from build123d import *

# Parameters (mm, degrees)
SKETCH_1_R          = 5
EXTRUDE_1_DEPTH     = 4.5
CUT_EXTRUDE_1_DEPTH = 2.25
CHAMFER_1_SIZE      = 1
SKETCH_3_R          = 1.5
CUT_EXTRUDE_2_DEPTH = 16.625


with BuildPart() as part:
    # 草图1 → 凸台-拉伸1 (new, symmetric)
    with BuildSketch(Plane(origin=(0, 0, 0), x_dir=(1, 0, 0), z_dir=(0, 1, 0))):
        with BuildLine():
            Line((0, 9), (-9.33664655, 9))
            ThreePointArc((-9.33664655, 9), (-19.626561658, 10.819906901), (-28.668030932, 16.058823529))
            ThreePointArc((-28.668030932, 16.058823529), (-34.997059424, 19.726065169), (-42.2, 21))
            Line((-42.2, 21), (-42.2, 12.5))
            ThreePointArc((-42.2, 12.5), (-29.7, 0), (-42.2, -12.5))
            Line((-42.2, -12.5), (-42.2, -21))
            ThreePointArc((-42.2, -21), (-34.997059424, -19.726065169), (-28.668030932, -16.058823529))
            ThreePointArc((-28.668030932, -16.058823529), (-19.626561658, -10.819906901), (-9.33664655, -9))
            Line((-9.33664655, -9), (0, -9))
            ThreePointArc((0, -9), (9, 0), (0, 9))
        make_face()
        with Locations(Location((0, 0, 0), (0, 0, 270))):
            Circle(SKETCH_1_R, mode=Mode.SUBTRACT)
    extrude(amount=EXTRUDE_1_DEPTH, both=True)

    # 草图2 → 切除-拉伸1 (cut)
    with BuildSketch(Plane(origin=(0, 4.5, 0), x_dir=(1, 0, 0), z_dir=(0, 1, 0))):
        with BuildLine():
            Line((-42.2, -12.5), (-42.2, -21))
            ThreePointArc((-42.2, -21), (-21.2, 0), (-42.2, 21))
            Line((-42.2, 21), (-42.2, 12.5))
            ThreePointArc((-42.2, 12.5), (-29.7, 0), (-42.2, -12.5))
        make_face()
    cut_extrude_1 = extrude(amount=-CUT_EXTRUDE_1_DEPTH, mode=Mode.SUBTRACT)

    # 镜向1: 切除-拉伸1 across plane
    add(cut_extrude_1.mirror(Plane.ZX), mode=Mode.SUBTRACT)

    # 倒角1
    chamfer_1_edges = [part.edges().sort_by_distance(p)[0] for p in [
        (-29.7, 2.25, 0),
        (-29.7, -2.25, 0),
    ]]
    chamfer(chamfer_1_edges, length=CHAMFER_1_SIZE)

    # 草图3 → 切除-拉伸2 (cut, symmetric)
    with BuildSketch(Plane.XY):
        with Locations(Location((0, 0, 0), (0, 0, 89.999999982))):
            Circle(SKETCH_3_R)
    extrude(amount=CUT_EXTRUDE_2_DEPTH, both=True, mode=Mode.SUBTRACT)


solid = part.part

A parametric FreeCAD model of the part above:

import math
import FreeCAD as App
import Part
import Sketcher
Q = App.Units.Quantity


def edges_at(feature, points):
    """Names of the edges that pass closest to the given points."""
    edges = feature.Shape.Edges
    near = lambda p: min(range(len(edges)), key=lambda i: edges[i].distToShape(Part.Vertex(*p))[0])
    return sorted({f"Edge{near(p) + 1}" for p in points})

doc = App.newDocument("Part")
body = doc.addObject("PartDesign::Body", "Body")

# Sketch on XZ plane
sketch1 = doc.addObject("Sketcher::SketchObject", "Sketch")
body.addObject(sketch1)
sketch1.AttachmentSupport = (doc.XZ_Plane, [""])
sketch1.MapMode = "FlatFace"
sketch1.addGeometry(Part.LineSegment(App.Vector(0, -9, 0), App.Vector(-9, -9, 0)), False)
sketch1.addGeometry(Part.ArcOfCircle(Part.Circle(App.Vector(-9, -39, 0), App.Vector(0, 0, 1), 30), math.radians(90), math.radians(130)), False)
sketch1.addGeometry(Part.ArcOfCircle(Part.Circle(App.Vector(-42, 0, 0), App.Vector(0, 0, 1), 21), math.radians(-90), math.radians(-50)), False)
sketch1.addGeometry(Part.LineSegment(App.Vector(-42, -21, 0), App.Vector(-42, -12, 0)), False)
sketch1.addGeometry(Part.ArcOfCircle(Part.Circle(App.Vector(-42, 0, 0), App.Vector(0, 0, 1), 12), math.radians(-90), math.radians(90)), False)
sketch1.addGeometry(Part.LineSegment(App.Vector(-42, 12, 0), App.Vector(-42, 21, 0)), False)
sketch1.addGeometry(Part.ArcOfCircle(Part.Circle(App.Vector(-42, 0, 0), App.Vector(0, 0, 1), 21), math.radians(50), math.radians(90)), False)
sketch1.addGeometry(Part.ArcOfCircle(Part.Circle(App.Vector(-9, 39, 0), App.Vector(0, 0, 1), 30), math.radians(-130), math.radians(-90)), False)
sketch1.addGeometry(Part.LineSegment(App.Vector(-9, 9, 0), App.Vector(0, 9, 0)), False)
sketch1.addGeometry(Part.ArcOfCircle(Part.Circle(App.Vector(0, 0, 0), App.Vector(0, 0, 1), 9), math.radians(-90), math.radians(90)), False)
sketch1.addGeometry(Part.Circle(App.Vector(0, 0, 0), App.Vector(0, 0, 1), 5), False)
sketch1.addConstraint(Sketcher.Constraint("Tangent", 0, 2, 1, 1))
sketch1.addConstraint(Sketcher.Constraint("Tangent", 1, 2, 2, 2))
sketch1.addConstraint(Sketcher.Constraint("Coincident", 2, 1, 3, 1))
sketch1.addConstraint(Sketcher.Constraint("Coincident", 3, 2, 4, 1))
sketch1.addConstraint(Sketcher.Constraint("Coincident", 4, 2, 5, 1))
sketch1.addConstraint(Sketcher.Constraint("Coincident", 5, 2, 6, 2))
sketch1.addConstraint(Sketcher.Constraint("Tangent", 6, 1, 7, 1))
sketch1.addConstraint(Sketcher.Constraint("Tangent", 7, 2, 8, 1))
sketch1.addConstraint(Sketcher.Constraint("Tangent", 8, 2, 9, 2))
sketch1.addConstraint(Sketcher.Constraint("Tangent", 9, 1, 0, 1))
sketch1.addConstraint(Sketcher.Constraint("Horizontal", 0))
sketch1.addConstraint(Sketcher.Constraint("Vertical", 3))
sketch1.addConstraint(Sketcher.Constraint("Vertical", 5))
sketch1.addConstraint(Sketcher.Constraint("Horizontal", 8))
sketch1.addConstraint(Sketcher.Constraint("Coincident", 9, 3, -1, 1))
sketch1.addConstraint(Sketcher.Constraint("Coincident", 10, 3, -1, 1))
sketch1.addConstraint(Sketcher.Constraint("Coincident", 4, 3, 2, 3))
sketch1.addConstraint(Sketcher.Constraint("Coincident", 6, 3, 2, 3))
sketch1.addConstraint(Sketcher.Constraint("Equal", 2, 6))
sketch1.addConstraint(Sketcher.Constraint("Equal", 1, 7))
sketch1.addConstraint(Sketcher.Constraint("Symmetric", 3, 2, 4, 2, -1))
sketch1.addConstraint(Sketcher.Constraint("Vertical", 6, 3, 2, 1))
sketch1.addConstraint(Sketcher.Constraint("Diameter", 10, Q("10 mm")))
sketch1.addConstraint(Sketcher.Constraint("Radius", 1, Q("30 mm")))
sketch1.addConstraint(Sketcher.Constraint("Radius", 2, Q("21 mm")))
sketch1.addConstraint(Sketcher.Constraint("Radius", 9, Q("9 mm")))
sketch1.addConstraint(Sketcher.Constraint("Radius", 4, Q("12.5 mm")))
sketch1.addConstraint(Sketcher.Constraint("DistanceX", 2, 3, -1, 1, Q("42.2 mm")))
pad1 = doc.addObject("PartDesign::Pad", "Pad")
body.addObject(pad1)
pad1.Profile = sketch1
pad1.Length = 9
pad1.Midplane = True

# Sketch on XZ plane
sketch2 = doc.addObject("Sketcher::SketchObject", "Sketch001")
body.addObject(sketch2)
sketch2.AttachmentSupport = (doc.XZ_Plane, [""])
sketch2.MapMode = "FlatFace"
sketch2.AttachmentOffset = App.Placement(App.Vector(0, 0, -4.5), App.Rotation())
sketch2.addGeometry(Part.LineSegment(App.Vector(-42, 12, 0), App.Vector(-42, 21, 0)), False)
sketch2.addGeometry(Part.ArcOfCircle(Part.Circle(App.Vector(-42, 0, 0), App.Vector(0, 0, 1), 21), math.radians(-90), math.radians(90)), False)
sketch2.addGeometry(Part.LineSegment(App.Vector(-42, -21, 0), App.Vector(-42, -12, 0)), False)
sketch2.addGeometry(Part.ArcOfCircle(Part.Circle(App.Vector(-42, 0, 0), App.Vector(0, 0, 1), 12), math.radians(-90), math.radians(90)), False)
sketch2.addConstraint(Sketcher.Constraint("Coincident", 0, 2, 1, 2))
sketch2.addConstraint(Sketcher.Constraint("Coincident", 1, 1, 2, 1))
sketch2.addConstraint(Sketcher.Constraint("Coincident", 2, 2, 3, 1))
sketch2.addConstraint(Sketcher.Constraint("Coincident", 3, 2, 0, 1))
sketch2.addConstraint(Sketcher.Constraint("Vertical", 0))
sketch2.addConstraint(Sketcher.Constraint("Vertical", 2))
sketch2.addConstraint(Sketcher.Constraint("Coincident", 3, 3, 1, 3))
sketch2.addConstraint(Sketcher.Constraint("Symmetric", 0, 2, 1, 1, -1))
sketch2.addConstraint(Sketcher.Constraint("Vertical", 3, 3, 0, 2))
sketch2.addConstraint(Sketcher.Constraint("Radius", 1, Q("21 mm")))
sketch2.addConstraint(Sketcher.Constraint("Radius", 3, Q("12.5 mm")))
sketch2.addConstraint(Sketcher.Constraint("DistanceX", 1, 3, -1, 1, Q("42.2 mm")))
pocket1 = doc.addObject("PartDesign::Pocket", "Pocket")
body.addObject(pocket1)
pocket1.Profile = sketch2
pocket1.Length = 2.25
pocket1.Reversed = True
doc.recompute()

mirrored = doc.addObject("PartDesign::Mirrored", "Mirrored")
body.addObject(mirrored)
mirrored.Originals = [pocket1]
mirrored.MirrorPlane = (doc.XZ_Plane, [""])
body.Tip = mirrored
doc.recompute()

chamfer = doc.addObject("PartDesign::Chamfer", "Chamfer")
body.addObject(chamfer)
chamfer.Base = (mirrored, edges_at(mirrored, [(-29.7, 2.25, 0), (-29.7, -2.25, 0)]))
chamfer.Size = 1

# Sketch on XY plane
sketch3 = doc.addObject("Sketcher::SketchObject", "Sketch002")
body.addObject(sketch3)
sketch3.AttachmentSupport = (doc.XY_Plane, [""])
sketch3.MapMode = "FlatFace"
sketch3.addGeometry(Part.Circle(App.Vector(0, 0, 0), App.Vector(0, 0, 1), 1.5), False)
sketch3.addConstraint(Sketcher.Constraint("Coincident", 0, 3, -1, 1))
sketch3.addConstraint(Sketcher.Constraint("Diameter", 0, Q("3 mm")))
pocket2 = doc.addObject("PartDesign::Pocket", "Pocket001")
body.addObject(pocket2)
pocket2.Profile = sketch3
pocket2.Length = 33.25
pocket2.Midplane = True

doc.recompute()
